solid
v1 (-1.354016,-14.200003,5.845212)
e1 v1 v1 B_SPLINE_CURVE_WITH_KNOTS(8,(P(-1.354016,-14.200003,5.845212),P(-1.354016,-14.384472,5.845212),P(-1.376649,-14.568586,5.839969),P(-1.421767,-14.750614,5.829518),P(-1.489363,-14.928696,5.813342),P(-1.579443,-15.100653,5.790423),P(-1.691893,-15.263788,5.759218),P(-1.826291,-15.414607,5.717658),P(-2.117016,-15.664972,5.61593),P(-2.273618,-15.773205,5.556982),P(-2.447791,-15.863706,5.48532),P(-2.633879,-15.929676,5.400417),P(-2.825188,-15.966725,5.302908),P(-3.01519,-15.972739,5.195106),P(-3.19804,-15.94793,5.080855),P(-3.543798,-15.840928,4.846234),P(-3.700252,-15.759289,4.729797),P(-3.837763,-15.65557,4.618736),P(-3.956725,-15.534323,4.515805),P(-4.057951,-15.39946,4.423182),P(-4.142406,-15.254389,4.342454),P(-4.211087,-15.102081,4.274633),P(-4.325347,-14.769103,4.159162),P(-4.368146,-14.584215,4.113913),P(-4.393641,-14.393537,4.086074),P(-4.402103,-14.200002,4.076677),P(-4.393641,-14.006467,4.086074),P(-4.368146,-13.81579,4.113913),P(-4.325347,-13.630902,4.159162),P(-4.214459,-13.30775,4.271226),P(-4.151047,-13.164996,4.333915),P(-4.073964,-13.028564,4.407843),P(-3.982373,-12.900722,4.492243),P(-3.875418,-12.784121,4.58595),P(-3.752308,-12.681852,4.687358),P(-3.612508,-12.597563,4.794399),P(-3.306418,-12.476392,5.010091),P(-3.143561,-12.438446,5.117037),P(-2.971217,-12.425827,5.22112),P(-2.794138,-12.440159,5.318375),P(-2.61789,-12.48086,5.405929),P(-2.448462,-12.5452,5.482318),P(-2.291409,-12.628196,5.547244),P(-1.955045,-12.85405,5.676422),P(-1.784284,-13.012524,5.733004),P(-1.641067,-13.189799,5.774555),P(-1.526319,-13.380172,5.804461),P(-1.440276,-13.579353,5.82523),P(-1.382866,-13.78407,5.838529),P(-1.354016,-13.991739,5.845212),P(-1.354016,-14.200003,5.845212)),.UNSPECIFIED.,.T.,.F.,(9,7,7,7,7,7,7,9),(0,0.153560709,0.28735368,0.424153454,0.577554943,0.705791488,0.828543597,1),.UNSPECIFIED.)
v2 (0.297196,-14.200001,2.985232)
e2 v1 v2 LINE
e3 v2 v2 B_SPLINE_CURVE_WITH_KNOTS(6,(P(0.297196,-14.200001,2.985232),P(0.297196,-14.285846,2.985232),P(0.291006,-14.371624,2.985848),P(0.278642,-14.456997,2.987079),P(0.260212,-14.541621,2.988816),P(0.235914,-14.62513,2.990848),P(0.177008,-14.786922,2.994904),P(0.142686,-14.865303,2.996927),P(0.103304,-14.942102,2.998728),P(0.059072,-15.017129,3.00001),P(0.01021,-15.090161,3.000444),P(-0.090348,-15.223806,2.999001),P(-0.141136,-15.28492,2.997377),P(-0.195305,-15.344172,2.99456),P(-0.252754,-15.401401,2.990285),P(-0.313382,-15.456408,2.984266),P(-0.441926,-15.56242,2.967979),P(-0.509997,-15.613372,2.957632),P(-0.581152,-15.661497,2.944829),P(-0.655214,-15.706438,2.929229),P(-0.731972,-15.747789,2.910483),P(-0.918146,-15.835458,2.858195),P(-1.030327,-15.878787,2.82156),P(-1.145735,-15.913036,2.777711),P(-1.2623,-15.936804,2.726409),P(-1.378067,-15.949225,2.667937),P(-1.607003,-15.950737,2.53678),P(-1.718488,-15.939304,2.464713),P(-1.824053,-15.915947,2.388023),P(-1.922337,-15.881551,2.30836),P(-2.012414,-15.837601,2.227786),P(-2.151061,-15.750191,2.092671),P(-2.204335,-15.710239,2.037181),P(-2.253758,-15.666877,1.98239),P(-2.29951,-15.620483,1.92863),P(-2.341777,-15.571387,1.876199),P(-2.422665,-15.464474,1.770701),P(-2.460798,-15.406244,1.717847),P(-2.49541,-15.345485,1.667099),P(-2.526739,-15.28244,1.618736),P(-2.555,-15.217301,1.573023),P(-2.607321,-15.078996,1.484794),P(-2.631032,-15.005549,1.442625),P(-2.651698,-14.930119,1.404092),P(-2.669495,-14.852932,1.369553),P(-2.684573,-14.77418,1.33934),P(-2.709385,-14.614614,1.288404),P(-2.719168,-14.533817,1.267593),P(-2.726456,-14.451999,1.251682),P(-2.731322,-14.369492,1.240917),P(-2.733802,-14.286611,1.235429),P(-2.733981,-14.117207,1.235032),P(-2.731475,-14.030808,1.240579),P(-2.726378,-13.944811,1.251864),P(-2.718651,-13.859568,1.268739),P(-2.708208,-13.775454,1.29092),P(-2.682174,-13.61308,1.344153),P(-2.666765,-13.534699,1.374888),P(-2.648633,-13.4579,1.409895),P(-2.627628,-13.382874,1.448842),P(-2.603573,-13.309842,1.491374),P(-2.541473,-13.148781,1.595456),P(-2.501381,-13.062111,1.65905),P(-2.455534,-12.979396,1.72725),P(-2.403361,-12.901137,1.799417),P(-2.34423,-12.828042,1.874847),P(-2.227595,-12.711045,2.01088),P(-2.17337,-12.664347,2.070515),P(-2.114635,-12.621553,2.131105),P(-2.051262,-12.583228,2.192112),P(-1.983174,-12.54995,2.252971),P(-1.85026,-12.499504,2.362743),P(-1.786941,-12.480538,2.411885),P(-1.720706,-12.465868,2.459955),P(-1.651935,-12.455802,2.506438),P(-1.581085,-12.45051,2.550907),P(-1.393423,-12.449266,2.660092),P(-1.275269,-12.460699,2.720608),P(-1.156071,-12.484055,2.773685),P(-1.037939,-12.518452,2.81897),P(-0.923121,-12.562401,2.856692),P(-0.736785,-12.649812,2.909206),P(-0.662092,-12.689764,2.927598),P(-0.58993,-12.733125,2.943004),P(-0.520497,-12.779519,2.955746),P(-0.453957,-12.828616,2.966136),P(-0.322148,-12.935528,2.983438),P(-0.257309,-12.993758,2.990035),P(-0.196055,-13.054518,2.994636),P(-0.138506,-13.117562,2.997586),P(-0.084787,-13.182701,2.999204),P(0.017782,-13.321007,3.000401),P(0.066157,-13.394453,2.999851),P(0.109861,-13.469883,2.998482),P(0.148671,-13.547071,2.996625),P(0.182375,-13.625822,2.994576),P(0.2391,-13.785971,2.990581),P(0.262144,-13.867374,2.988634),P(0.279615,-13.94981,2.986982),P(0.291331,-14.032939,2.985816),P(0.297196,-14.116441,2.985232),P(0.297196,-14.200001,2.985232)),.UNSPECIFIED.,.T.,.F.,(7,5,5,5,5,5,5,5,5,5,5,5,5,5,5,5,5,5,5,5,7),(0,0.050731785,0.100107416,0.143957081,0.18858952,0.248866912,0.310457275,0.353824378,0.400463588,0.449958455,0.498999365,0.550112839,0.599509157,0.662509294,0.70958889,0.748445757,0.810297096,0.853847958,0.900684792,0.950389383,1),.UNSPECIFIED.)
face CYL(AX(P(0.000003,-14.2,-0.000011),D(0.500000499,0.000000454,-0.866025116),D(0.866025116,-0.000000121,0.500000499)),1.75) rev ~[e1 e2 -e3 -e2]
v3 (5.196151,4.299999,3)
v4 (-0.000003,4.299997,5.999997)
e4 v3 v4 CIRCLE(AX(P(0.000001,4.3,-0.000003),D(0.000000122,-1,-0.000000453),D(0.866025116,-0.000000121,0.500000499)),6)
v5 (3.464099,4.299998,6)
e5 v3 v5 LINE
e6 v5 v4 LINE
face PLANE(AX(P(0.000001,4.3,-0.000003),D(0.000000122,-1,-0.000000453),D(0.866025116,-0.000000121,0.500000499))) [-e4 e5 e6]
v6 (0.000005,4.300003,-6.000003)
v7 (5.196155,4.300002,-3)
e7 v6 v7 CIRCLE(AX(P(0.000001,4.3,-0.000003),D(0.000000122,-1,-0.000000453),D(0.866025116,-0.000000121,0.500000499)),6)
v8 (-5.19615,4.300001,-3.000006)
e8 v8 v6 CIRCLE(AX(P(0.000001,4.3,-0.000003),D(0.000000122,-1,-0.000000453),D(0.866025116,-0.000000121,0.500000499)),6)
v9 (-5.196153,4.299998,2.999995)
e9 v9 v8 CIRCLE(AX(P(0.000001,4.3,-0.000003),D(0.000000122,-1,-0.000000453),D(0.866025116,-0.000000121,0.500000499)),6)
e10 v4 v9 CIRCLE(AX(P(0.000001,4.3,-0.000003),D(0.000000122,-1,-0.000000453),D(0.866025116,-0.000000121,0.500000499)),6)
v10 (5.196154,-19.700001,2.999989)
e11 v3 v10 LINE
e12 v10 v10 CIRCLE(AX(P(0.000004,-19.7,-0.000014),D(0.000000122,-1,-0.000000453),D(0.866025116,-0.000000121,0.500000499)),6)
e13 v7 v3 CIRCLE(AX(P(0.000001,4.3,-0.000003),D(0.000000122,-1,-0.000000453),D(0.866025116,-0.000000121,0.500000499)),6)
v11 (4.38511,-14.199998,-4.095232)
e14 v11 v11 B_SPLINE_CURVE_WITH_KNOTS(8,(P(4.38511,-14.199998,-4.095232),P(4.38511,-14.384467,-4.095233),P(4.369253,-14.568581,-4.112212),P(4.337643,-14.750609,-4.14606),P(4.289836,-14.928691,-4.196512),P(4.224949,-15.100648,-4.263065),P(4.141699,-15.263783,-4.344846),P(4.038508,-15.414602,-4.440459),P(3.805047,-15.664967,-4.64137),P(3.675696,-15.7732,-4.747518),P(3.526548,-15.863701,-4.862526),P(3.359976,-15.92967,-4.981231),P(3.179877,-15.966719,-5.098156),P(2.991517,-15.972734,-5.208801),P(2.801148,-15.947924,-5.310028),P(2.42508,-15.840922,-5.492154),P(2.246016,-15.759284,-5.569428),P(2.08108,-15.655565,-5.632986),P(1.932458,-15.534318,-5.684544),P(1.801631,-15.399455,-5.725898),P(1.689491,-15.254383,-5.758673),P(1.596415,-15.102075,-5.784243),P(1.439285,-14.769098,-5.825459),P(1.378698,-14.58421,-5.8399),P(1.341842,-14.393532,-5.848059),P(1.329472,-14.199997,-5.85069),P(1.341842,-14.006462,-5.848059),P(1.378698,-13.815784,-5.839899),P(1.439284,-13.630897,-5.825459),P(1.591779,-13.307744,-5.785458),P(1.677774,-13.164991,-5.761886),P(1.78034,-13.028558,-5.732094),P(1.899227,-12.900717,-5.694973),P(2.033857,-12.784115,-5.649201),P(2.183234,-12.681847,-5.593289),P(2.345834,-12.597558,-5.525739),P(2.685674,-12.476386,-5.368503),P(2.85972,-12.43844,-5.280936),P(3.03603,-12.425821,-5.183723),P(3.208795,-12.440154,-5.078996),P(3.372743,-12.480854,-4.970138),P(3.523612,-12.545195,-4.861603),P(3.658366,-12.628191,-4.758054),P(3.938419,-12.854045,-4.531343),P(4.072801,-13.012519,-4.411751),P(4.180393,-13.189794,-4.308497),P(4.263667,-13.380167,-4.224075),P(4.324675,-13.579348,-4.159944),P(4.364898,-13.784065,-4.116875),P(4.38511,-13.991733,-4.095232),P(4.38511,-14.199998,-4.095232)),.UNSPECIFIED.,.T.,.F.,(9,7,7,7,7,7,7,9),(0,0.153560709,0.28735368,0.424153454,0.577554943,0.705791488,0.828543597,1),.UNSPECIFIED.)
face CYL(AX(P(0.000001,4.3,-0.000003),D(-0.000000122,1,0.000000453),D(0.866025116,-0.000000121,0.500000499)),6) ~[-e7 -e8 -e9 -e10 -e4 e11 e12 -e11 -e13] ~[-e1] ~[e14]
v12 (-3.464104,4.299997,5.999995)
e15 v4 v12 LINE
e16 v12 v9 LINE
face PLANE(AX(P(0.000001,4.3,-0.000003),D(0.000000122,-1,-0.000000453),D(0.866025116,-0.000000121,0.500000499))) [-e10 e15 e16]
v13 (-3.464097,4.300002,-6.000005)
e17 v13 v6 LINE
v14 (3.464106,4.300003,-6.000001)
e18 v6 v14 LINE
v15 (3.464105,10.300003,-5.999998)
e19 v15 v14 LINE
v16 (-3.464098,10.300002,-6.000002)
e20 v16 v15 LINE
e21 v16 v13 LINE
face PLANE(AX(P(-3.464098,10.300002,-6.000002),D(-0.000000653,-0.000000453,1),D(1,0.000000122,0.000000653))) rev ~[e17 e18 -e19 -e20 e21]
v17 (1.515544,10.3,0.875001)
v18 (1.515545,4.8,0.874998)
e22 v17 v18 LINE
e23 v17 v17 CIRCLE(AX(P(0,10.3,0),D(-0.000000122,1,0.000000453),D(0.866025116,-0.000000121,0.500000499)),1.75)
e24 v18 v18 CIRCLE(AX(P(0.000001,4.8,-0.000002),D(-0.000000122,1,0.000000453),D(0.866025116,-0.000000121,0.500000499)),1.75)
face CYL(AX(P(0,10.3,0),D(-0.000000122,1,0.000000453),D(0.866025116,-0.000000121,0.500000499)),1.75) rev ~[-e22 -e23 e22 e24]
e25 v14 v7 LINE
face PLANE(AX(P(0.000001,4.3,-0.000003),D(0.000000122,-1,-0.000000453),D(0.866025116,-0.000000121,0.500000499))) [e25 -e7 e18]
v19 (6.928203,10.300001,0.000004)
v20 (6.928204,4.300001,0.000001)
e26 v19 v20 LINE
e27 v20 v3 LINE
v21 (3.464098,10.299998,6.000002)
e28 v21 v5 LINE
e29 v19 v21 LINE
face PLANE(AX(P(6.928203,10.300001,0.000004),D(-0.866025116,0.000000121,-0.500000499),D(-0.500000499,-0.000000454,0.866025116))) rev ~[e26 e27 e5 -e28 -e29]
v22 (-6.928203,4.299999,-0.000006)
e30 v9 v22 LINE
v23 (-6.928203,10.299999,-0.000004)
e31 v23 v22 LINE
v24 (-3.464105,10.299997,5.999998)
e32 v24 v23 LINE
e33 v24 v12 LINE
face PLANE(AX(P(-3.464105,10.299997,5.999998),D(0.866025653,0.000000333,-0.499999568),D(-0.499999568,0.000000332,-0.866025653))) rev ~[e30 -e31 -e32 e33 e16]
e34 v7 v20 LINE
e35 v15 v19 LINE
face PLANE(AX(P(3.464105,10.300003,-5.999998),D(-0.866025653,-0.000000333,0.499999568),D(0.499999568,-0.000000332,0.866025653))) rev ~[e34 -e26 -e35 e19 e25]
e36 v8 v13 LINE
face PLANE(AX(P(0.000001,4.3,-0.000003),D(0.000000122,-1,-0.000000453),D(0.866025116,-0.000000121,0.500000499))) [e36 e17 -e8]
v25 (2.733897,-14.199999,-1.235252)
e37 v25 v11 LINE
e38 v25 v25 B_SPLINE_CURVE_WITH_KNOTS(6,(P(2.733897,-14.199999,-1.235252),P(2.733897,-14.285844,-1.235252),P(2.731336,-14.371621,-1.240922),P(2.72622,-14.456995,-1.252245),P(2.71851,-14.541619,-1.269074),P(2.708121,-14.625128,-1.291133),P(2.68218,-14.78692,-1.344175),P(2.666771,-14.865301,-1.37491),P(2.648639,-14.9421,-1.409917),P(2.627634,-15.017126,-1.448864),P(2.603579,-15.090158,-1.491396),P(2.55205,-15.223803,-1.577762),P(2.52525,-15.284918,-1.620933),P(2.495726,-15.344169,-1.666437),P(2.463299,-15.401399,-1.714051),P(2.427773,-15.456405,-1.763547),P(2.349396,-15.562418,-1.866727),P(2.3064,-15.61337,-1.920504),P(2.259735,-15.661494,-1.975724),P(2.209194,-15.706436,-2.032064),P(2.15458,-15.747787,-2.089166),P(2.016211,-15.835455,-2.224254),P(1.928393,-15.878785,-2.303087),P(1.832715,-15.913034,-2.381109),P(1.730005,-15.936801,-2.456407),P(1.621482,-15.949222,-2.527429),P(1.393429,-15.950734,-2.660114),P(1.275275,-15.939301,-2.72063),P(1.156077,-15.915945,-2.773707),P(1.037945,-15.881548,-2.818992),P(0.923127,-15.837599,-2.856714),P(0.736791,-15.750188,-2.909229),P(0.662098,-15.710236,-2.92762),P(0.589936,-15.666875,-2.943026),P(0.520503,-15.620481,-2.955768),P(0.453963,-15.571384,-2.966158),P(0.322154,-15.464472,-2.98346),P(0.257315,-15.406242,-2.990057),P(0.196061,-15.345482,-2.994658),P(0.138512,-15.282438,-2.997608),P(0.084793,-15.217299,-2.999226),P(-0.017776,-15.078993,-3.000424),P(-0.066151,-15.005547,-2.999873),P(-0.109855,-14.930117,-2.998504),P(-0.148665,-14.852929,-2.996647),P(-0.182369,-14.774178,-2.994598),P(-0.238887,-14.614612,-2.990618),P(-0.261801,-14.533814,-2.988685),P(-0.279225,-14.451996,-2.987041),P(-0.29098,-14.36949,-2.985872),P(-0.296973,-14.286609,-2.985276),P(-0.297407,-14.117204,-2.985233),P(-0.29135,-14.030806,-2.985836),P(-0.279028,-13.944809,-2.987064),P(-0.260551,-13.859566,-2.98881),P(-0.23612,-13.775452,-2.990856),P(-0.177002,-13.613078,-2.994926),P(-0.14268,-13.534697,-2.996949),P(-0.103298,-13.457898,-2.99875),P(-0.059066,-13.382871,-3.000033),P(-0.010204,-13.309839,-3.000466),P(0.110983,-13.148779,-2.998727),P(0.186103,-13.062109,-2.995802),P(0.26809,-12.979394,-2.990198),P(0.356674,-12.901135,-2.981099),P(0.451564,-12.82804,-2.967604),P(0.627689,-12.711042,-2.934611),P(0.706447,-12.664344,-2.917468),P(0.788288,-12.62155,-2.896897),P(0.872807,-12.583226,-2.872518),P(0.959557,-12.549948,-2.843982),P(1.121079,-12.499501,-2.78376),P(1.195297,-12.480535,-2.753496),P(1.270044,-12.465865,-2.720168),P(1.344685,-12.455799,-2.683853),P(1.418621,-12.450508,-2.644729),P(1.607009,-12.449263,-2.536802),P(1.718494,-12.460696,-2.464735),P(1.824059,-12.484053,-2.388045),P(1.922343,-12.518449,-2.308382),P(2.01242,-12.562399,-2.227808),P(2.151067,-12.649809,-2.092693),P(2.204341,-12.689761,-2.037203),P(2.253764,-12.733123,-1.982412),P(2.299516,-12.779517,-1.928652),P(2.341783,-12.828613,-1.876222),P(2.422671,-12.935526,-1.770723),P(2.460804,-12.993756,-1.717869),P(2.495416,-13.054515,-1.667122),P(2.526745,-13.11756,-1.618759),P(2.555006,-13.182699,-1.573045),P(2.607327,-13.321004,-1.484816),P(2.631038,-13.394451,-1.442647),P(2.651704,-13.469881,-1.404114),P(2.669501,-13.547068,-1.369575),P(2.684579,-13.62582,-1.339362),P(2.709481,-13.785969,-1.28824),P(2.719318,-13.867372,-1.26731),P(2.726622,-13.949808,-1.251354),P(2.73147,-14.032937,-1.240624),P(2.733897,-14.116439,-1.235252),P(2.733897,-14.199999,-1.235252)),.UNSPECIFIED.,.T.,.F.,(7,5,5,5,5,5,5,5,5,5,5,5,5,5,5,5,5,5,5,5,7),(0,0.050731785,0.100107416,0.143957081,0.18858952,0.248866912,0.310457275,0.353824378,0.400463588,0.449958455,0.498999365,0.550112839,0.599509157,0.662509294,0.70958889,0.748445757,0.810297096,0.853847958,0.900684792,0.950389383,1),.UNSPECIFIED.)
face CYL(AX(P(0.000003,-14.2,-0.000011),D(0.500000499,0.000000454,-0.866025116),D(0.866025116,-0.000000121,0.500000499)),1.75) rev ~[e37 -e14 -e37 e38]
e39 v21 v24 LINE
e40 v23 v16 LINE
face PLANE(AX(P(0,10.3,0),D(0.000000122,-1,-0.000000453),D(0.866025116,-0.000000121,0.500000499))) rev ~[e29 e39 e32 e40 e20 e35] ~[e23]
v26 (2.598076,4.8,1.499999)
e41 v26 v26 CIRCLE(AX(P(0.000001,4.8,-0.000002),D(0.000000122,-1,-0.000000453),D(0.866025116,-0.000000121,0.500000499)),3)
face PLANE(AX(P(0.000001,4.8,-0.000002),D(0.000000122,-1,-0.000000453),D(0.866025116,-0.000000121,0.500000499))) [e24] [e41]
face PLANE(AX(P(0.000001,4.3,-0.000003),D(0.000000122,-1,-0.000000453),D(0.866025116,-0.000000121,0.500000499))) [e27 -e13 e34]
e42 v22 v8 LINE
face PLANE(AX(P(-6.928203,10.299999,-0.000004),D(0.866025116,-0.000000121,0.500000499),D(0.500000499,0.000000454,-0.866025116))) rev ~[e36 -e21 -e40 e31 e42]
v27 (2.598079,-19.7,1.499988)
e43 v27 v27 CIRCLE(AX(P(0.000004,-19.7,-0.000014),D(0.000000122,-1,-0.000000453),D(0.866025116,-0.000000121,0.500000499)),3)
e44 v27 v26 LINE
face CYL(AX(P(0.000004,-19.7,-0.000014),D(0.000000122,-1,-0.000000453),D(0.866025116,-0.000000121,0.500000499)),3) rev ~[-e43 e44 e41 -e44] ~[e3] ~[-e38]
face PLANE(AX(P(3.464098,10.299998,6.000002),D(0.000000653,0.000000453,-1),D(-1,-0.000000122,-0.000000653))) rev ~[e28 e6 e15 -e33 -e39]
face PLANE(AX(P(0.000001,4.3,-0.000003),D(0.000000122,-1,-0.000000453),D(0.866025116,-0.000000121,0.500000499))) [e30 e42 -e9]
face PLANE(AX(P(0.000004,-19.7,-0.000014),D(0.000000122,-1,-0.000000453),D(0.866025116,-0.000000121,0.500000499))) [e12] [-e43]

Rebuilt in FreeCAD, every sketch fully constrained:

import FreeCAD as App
import Part
import Sketcher
from FreeCAD import Vector
Q = App.Units.Quantity

doc = App.newDocument("Part")
body = doc.addObject("PartDesign::Body", "Body")

# Sketch on XY plane
sketch1 = doc.addObject("Sketcher::SketchObject", "Sketch")
body.addObject(sketch1)
sketch1.AttachmentSupport = (doc.XY_Plane, [""])
sketch1.MapMode = "FlatFace"
sketch1.addGeometry([
    Part.LineSegment(Vector(6, 3, 0), Vector(0, 7, 0)),  # 0
    Part.LineSegment(Vector(0, 7, 0), Vector(-6, 3, 0)),  # 1
    Part.LineSegment(Vector(-6, 3, 0), Vector(-6, -3, 0)),  # 2
    Part.LineSegment(Vector(-6, -3, 0), Vector(0, -7, 0)),  # 3
    Part.LineSegment(Vector(0, -7, 0), Vector(6, -3, 0)),  # 4
    Part.LineSegment(Vector(6, -3, 0), Vector(6, 3, 0)),  # 5
], False)
sketch1.addConstraint([
    Sketcher.Constraint("Coincident", 0, 2, 1, 1),
    Sketcher.Constraint("Coincident", 1, 2, 2, 1),
    Sketcher.Constraint("Coincident", 2, 2, 3, 1),
    Sketcher.Constraint("Coincident", 3, 2, 4, 1),
    Sketcher.Constraint("Coincident", 4, 2, 5, 1),
    Sketcher.Constraint("Coincident", 5, 2, 0, 1),
    Sketcher.Constraint("Vertical", 2),
    Sketcher.Constraint("Vertical", 5),
    Sketcher.Constraint("Symmetric", 0, 2, 3, 2, -1, 1),
    Sketcher.Constraint("Symmetric", 1, 2, 4, 2, -1, 1),
    Sketcher.Constraint("PointOnObject", 0, 2, -2),
    Sketcher.Constraint("Parallel", 0, 3),
    Sketcher.Constraint("Horizontal", 2, 2, 4, 2),
    Sketcher.Constraint("Angle", 0, Q("150.000004 deg")),
    Sketcher.Constraint("DistanceX", 1, 2, -1, 1, 6.0),
    Sketcher.Constraint("DistanceY", -1, 1, 1, 2, 3.464102),
])
pad1 = doc.addObject("PartDesign::Pad", "Pad")
body.addObject(pad1)
pad1.Profile = sketch1
pad1.Length = 6

# Sketch on XY plane
sketch2 = doc.addObject("Sketcher::SketchObject", "Sketch001")
body.addObject(sketch2)
sketch2.AttachmentSupport = (doc.XY_Plane, [""])
sketch2.MapMode = "FlatFace"
sketch2.AttachmentOffset = App.Placement(Vector(0, 0, 6), App.Rotation())
sketch2.addGeometry(Part.Circle(Vector(0, 0, 0), Vector(0, 0, 1), 6), False)
sketch2.addConstraint([
    Sketcher.Constraint("Coincident", 0, 3, -1, 1),
    Sketcher.Constraint("Diameter", 0, 12.0),
])
pad2 = doc.addObject("PartDesign::Pad", "Pad001")
body.addObject(pad2)
pad2.Profile = sketch2
pad2.Length = 24

# Sketch on XY plane
sketch3 = doc.addObject("Sketcher::SketchObject", "Sketch002")
body.addObject(sketch3)
sketch3.AttachmentSupport = (doc.XY_Plane, [""])
sketch3.MapMode = "FlatFace"
sketch3.AttachmentOffset = App.Placement(Vector(0, 0, 30), App.Rotation())
sketch3.addGeometry(Part.Circle(Vector(0, 0, 0), Vector(0, 0, 1), 3), False)
sketch3.addConstraint([
    Sketcher.Constraint("Coincident", 0, 3, -1, 1),
    Sketcher.Constraint("Diameter", 0, 6.0),
])
pocket1 = doc.addObject("PartDesign::Pocket", "Pocket")
body.addObject(pocket1)
pocket1.Profile = sketch3
pocket1.Length = 24.5

# Sketch on XY plane
sketch4 = doc.addObject("Sketcher::SketchObject", "Sketch003")
body.addObject(sketch4)
sketch4.AttachmentSupport = (doc.XY_Plane, [""])
sketch4.MapMode = "FlatFace"
sketch4.addGeometry(Part.Circle(Vector(0, 0, 0), Vector(0, 0, 1), 1.8), False)
sketch4.addConstraint([
    Sketcher.Constraint("Coincident", 0, 3, -1, 1),
    Sketcher.Constraint("Diameter", 0, 3.5),
])
pocket2 = doc.addObject("PartDesign::Pocket", "Pocket001")
body.addObject(pocket2)
pocket2.Profile = sketch4
pocket2.Length = 6
pocket2.Reversed = True

# Sketch on XZ plane
sketch5 = doc.addObject("Sketcher::SketchObject", "Sketch004")
body.addObject(sketch5)
sketch5.AttachmentSupport = (doc.XZ_Plane, [""])
sketch5.MapMode = "FlatFace"
sketch5.addGeometry(Part.Circle(Vector(0, 24.5, 0), Vector(0, 0, 1), 1.8), False)
sketch5.addConstraint([
    Sketcher.Constraint("PointOnObject", 0, 3, -2),
    Sketcher.Constraint("Diameter", 0, 3.5),
    Sketcher.Constraint("DistanceY", -1, 1, 0, 3, 24.5),
])
pocket3 = doc.addObject("PartDesign::Pocket", "Pocket002")
body.addObject(pocket3)
pocket3.Profile = sketch5
pocket3.Length = 14
pocket3.Midplane = True
body2 = doc.addObject("PartDesign::Body", "Body001")
doc.recompute()

body.Placement = App.Placement(Vector(0, 0, 0), App.Rotation(Vector(1, 0, 0), 90.00003))
boolean = doc.addObject("PartDesign::Boolean", "Boolean")
body2.addObject(boolean)
boolean.Type = "Fuse"
boolean.addObjects([body])
body3 = doc.addObject("PartDesign::Body", "Body002")
doc.recompute()

body2.Placement = App.Placement(Vector(0, 0, 0), App.Rotation(Vector(0, 1, 0), 329.999967))
boolean2 = doc.addObject("PartDesign::Boolean", "Boolean001")
body3.addObject(boolean2)
boolean2.Type = "Fuse"
boolean2.addObjects([body2])
body4 = doc.addObject("PartDesign::Body", "Body003")
doc.recompute()

body3.Placement = App.Placement(Vector(0, 10.3, 0), App.Rotation(Vector(0, 0, 1), 359.999992))
boolean3 = doc.addObject("PartDesign::Boolean", "Boolean002")
body4.addObject(boolean3)
boolean3.Type = "Fuse"
boolean3.addObjects([body3])

doc.recompute()
